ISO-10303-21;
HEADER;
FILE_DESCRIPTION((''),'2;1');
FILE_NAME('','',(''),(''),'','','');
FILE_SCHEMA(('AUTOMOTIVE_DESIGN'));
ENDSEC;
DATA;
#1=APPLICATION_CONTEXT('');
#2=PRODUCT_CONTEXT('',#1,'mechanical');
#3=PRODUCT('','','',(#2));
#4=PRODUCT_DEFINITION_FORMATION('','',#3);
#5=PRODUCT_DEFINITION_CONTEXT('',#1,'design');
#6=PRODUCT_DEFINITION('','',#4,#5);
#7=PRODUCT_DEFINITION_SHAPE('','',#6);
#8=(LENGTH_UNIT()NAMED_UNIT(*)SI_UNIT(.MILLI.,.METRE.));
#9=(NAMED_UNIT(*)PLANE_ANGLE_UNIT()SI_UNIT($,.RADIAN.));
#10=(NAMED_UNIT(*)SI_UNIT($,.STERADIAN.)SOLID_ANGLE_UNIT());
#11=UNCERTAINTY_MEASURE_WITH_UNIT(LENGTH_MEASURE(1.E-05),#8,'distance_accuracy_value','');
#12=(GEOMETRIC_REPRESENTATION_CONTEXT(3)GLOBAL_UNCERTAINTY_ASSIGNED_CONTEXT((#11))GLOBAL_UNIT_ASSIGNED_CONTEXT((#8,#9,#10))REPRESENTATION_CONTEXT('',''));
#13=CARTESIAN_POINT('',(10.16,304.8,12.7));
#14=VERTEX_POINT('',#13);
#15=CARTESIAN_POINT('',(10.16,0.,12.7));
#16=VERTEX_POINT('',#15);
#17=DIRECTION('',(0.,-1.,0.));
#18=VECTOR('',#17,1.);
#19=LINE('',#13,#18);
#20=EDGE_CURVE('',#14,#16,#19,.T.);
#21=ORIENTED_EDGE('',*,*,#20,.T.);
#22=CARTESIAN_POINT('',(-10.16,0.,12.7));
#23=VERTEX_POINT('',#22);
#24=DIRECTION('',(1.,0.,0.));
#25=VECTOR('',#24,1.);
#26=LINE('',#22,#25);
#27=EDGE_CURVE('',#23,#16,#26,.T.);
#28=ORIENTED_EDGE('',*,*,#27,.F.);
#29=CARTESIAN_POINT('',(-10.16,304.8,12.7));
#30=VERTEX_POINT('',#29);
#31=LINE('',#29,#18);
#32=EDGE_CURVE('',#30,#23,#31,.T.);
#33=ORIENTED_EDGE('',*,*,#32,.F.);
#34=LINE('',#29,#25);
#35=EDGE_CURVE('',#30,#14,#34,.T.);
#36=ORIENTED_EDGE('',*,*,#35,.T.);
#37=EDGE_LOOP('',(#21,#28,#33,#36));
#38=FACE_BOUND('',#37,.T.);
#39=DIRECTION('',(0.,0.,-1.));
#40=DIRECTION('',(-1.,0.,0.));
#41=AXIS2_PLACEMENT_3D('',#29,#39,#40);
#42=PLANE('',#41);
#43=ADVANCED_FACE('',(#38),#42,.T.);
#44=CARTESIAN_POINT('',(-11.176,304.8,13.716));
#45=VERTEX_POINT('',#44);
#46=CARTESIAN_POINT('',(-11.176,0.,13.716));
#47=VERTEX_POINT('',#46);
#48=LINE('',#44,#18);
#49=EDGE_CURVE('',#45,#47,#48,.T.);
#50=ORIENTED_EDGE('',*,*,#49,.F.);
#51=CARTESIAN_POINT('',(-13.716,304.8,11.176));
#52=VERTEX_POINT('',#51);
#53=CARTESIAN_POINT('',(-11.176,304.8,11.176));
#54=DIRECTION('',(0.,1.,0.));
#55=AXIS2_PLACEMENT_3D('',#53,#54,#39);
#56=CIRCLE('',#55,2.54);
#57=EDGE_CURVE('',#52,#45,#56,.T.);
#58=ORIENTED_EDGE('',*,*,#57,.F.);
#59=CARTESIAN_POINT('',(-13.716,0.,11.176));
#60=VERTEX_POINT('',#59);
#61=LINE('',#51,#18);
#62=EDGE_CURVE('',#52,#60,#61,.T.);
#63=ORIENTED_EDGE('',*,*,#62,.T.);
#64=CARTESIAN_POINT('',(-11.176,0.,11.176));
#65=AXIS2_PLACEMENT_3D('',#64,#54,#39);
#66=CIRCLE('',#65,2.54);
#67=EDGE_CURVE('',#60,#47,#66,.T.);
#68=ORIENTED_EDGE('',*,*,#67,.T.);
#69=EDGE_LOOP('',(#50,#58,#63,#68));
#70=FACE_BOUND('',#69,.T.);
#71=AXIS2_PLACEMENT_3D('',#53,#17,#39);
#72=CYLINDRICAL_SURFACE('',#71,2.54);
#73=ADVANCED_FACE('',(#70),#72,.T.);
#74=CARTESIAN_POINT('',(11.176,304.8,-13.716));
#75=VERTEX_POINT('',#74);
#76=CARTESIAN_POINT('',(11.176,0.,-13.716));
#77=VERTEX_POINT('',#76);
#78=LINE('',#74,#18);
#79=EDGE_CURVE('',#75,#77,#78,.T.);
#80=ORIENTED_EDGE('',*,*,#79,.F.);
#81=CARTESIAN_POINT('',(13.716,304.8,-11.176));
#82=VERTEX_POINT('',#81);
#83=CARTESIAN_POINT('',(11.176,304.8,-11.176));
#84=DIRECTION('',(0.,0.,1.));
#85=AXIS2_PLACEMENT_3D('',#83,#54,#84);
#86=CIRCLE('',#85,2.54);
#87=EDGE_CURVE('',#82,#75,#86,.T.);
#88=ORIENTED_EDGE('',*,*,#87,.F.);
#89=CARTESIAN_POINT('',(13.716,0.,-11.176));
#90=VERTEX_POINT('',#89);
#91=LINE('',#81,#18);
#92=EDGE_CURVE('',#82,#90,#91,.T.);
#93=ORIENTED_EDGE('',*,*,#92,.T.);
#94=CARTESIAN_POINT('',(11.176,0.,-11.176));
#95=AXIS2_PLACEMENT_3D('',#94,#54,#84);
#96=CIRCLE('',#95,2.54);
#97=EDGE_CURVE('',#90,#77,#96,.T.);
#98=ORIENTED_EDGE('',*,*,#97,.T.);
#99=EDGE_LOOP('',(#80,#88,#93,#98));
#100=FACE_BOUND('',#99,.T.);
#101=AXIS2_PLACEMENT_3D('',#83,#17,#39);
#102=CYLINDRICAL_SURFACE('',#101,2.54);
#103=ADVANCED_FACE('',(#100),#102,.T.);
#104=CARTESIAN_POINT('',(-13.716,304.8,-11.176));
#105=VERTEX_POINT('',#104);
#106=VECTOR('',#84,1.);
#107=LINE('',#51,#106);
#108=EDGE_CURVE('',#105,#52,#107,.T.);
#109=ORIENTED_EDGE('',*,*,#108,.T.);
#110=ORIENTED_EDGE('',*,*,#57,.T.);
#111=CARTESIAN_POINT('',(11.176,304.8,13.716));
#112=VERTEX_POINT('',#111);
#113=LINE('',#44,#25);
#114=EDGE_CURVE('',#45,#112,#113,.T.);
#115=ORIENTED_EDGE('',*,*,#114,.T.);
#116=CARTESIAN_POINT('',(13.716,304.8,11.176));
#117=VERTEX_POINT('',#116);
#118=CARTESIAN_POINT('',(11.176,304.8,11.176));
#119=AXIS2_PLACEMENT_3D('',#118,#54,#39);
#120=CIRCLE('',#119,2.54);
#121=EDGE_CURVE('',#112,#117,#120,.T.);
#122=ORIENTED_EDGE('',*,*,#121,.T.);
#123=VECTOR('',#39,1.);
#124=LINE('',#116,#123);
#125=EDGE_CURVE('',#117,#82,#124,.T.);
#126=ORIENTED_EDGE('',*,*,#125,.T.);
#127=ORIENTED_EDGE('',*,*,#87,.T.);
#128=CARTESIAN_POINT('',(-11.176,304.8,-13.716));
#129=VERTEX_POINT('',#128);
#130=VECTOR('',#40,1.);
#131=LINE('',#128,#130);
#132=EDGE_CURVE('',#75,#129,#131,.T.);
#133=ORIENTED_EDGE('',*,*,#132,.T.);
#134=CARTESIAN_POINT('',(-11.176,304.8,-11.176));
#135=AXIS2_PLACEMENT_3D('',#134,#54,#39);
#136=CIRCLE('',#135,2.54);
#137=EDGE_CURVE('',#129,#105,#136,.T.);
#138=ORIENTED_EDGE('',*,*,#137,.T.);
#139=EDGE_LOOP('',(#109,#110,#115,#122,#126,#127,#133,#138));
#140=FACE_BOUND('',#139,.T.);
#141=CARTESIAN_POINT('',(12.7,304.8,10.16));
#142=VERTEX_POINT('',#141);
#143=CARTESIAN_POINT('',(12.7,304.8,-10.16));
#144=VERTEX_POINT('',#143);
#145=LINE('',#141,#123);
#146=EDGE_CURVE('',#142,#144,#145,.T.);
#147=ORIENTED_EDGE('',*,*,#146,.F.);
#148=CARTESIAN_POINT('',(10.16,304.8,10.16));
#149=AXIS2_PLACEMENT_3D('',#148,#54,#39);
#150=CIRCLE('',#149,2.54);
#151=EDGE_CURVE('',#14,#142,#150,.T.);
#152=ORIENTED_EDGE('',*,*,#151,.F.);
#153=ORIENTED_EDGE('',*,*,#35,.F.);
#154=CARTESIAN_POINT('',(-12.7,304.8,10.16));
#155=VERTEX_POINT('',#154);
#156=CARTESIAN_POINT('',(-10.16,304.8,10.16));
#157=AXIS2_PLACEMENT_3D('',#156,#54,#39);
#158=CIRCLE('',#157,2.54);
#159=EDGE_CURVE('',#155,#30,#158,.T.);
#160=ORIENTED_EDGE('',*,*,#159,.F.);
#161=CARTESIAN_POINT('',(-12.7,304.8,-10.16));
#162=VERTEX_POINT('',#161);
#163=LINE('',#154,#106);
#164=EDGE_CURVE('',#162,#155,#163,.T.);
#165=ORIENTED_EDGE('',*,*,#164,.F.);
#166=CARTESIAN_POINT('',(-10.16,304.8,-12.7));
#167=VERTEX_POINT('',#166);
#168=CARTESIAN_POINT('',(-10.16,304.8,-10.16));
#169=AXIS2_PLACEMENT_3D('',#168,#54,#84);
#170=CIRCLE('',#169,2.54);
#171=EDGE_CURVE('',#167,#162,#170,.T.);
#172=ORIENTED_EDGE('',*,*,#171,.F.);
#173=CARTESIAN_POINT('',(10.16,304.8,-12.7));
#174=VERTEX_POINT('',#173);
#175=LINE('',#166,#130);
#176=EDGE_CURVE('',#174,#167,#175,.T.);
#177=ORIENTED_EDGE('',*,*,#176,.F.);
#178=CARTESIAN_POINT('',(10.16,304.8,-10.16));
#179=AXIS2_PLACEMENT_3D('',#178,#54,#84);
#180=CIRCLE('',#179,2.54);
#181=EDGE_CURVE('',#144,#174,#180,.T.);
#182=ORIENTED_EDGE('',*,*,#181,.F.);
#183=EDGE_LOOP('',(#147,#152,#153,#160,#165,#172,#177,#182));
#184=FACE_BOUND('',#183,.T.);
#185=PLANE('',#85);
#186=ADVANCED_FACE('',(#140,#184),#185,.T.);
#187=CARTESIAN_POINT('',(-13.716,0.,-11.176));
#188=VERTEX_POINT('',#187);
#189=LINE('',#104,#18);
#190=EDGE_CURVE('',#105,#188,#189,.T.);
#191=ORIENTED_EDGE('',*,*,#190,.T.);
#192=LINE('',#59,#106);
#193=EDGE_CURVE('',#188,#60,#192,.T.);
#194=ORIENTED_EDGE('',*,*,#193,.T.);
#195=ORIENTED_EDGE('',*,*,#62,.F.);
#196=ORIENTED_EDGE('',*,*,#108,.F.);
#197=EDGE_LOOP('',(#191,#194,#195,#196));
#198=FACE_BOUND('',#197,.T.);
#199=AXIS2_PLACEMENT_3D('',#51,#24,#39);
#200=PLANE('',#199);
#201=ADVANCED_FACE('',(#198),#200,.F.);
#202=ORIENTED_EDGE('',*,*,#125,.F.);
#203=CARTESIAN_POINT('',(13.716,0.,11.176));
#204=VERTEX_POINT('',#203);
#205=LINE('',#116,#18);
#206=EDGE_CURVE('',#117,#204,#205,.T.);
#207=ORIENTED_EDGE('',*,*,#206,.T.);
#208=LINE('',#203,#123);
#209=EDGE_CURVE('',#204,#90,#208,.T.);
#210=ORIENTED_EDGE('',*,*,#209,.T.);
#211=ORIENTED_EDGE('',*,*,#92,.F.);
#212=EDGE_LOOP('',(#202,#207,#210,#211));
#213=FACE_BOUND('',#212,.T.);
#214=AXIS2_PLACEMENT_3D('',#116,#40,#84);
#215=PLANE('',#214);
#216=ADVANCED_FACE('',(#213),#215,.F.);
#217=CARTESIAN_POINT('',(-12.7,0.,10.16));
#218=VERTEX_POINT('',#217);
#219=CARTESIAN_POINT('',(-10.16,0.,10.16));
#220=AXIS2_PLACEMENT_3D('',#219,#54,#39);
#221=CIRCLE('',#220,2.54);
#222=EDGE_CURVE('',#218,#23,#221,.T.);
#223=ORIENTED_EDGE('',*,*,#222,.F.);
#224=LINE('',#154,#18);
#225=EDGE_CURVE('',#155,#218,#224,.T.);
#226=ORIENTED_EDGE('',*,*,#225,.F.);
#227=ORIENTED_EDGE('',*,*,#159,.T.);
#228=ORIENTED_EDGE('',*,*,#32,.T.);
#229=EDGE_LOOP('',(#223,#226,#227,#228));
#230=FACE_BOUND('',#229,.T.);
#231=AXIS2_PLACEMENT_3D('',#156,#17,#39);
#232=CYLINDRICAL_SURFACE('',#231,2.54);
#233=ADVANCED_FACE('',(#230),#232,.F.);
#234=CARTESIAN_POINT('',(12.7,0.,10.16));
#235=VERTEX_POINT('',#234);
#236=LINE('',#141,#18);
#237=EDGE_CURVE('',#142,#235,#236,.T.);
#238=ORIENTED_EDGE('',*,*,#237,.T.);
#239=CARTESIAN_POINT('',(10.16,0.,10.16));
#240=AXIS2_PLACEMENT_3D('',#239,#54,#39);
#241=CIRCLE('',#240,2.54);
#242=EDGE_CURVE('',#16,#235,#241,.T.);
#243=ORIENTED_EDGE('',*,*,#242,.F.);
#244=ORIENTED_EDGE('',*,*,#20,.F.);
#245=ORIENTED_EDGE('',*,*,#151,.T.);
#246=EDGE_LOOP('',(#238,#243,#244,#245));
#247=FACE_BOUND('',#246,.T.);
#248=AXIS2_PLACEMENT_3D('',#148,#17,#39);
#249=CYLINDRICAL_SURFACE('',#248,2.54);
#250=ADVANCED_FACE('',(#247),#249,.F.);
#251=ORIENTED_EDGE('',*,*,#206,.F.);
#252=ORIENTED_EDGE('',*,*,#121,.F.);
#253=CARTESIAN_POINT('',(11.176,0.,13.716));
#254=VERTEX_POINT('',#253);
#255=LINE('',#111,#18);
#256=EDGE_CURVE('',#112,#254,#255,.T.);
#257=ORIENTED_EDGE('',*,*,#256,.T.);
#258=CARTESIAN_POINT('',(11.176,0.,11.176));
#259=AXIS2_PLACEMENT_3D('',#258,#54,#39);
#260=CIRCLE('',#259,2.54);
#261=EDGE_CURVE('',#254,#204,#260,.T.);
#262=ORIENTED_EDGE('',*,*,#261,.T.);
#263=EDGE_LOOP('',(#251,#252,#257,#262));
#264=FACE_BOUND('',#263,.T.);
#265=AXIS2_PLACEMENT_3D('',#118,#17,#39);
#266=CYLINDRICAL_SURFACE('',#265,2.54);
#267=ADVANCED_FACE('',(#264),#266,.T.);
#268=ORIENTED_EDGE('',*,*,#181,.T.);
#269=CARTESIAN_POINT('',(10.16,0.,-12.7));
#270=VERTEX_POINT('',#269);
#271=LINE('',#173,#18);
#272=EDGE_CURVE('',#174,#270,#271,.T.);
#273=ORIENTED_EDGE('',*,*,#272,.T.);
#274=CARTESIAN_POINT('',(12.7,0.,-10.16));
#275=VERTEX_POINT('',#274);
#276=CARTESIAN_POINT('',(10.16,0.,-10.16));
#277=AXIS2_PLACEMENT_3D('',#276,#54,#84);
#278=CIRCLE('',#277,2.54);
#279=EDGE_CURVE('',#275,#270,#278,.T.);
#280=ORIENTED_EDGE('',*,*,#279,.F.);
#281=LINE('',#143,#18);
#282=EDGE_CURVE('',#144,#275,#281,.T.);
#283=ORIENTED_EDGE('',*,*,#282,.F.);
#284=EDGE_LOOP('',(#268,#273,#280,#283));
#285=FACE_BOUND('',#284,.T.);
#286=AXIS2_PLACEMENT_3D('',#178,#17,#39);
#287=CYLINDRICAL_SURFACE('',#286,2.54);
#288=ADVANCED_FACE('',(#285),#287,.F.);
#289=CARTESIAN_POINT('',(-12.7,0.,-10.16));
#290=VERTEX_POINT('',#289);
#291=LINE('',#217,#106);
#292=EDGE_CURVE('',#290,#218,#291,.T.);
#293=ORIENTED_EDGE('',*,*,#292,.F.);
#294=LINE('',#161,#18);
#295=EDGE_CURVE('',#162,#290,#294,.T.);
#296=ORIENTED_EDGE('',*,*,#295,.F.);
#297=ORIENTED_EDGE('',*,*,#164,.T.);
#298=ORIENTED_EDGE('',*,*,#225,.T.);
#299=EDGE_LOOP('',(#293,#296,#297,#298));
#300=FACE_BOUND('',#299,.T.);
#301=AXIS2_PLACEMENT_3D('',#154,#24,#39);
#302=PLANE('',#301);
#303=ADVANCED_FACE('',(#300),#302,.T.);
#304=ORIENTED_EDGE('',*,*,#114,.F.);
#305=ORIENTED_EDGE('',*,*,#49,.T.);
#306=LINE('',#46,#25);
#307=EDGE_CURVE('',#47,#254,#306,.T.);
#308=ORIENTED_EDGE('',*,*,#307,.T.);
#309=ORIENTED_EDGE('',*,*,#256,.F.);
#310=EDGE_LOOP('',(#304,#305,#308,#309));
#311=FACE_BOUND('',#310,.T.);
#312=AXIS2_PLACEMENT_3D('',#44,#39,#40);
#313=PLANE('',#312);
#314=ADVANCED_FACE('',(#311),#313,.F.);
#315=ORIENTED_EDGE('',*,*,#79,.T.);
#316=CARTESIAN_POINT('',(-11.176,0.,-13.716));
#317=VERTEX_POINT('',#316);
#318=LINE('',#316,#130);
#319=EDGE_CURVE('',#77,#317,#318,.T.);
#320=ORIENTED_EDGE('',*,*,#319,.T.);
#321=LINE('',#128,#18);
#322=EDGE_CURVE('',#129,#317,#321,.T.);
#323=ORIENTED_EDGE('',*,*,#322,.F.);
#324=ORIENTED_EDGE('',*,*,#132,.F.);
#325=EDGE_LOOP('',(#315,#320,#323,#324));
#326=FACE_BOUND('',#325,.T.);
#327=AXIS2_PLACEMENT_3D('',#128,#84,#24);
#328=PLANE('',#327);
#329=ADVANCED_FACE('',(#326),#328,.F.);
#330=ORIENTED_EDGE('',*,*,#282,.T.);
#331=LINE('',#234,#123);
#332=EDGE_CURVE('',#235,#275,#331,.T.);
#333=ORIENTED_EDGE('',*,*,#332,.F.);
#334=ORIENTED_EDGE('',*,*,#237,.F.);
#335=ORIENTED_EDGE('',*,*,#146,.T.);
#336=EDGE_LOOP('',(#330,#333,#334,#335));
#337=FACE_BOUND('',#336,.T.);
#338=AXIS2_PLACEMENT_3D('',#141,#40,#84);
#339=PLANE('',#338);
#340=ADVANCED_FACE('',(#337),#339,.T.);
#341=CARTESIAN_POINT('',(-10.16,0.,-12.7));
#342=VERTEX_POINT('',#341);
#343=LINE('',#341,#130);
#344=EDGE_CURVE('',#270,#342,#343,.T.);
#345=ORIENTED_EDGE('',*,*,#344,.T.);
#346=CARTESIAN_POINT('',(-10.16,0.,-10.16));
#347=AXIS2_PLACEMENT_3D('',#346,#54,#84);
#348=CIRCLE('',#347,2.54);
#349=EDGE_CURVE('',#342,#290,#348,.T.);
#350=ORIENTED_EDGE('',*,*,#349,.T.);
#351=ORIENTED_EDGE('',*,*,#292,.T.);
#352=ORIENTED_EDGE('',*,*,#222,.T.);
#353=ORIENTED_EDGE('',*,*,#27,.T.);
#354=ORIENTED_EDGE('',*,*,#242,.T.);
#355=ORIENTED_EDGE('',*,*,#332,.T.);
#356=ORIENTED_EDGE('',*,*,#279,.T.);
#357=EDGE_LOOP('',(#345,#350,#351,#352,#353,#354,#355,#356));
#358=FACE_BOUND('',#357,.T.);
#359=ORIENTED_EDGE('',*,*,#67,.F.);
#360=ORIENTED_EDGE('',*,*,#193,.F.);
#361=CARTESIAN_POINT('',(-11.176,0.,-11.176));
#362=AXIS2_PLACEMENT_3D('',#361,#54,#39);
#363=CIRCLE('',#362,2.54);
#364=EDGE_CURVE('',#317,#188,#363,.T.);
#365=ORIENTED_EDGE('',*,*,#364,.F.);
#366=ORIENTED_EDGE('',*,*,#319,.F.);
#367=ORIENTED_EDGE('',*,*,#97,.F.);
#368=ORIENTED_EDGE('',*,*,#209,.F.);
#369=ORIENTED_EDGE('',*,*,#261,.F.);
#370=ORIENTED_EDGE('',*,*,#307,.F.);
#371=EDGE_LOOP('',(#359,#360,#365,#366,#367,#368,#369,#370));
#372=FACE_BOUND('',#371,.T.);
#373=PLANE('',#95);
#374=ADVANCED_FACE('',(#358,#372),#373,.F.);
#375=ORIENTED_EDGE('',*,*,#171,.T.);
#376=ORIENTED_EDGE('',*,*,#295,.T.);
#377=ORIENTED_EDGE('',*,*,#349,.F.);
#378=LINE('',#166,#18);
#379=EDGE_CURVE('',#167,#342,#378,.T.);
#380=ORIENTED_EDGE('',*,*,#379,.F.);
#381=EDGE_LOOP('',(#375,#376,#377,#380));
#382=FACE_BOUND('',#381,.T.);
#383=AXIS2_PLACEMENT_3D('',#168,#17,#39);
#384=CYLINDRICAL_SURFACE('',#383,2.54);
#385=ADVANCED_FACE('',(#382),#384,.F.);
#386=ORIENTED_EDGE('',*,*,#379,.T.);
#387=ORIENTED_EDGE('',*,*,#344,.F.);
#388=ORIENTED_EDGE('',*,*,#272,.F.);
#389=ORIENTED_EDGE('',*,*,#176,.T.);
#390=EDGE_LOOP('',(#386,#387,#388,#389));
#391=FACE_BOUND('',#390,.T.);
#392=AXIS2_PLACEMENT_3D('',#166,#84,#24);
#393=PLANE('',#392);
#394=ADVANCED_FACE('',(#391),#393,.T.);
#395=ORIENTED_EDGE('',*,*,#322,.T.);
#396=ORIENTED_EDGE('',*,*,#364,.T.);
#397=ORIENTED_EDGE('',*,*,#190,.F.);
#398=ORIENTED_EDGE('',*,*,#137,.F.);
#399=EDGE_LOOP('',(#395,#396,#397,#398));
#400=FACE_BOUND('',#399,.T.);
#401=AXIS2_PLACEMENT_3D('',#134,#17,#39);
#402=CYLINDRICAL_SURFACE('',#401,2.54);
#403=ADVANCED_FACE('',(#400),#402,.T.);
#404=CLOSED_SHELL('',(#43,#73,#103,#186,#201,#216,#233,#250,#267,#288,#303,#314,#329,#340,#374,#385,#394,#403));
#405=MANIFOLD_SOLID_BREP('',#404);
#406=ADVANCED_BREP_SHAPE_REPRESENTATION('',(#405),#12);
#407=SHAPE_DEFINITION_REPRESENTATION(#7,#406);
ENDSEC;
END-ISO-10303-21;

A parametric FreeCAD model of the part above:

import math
import FreeCAD as App
import Part
import Sketcher

V = App.Vector
Q = App.Units.Quantity

doc = App.newDocument("Part")
body = doc.addObject("PartDesign::Body", "Body")

sketch1 = doc.addObject("Sketcher::SketchObject", "Sketch")
body.addObject(sketch1)
sketch1.AttachmentSupport = (doc.XZ_Plane, [""])
sketch1.MapMode = "FlatFace"
sketch1.addGeometry([
    Part.LineSegment(V(-11.176, 13.716, 0), V(11.176, 13.716, 0)),
    Part.ArcOfCircle(Part.Circle(V(11.176, 11.176, 0), V(0, 0, 1), 2.54), math.radians(0), math.radians(90)),
    Part.LineSegment(V(13.716, 11.176, 0), V(13.716, -11.176, 0)),
    Part.ArcOfCircle(Part.Circle(V(11.176, -11.176, 0), V(0, 0, 1), 2.54), math.radians(-90), math.radians(0)),
    Part.LineSegment(V(11.176, -13.716, 0), V(-11.176, -13.716, 0)),
    Part.ArcOfCircle(Part.Circle(V(-11.176, -11.176, 0), V(0, 0, 1), 2.54), math.radians(-180), math.radians(-90)),
    Part.LineSegment(V(-13.716, -11.176, 0), V(-13.716, 11.176, 0)),
    Part.ArcOfCircle(Part.Circle(V(-11.176, 11.176, 0), V(0, 0, 1), 2.54), math.radians(90), math.radians(180)),
    Part.LineSegment(V(10.16, 12.7, 0), V(-10.16, 12.7, 0)),
    Part.ArcOfCircle(Part.Circle(V(-10.16, 10.16, 0), V(0, 0, 1), 2.54), math.radians(90), math.radians(180)),
    Part.LineSegment(V(-12.7, 10.16, 0), V(-12.7, -10.16, 0)),
    Part.ArcOfCircle(Part.Circle(V(-10.16, -10.16, 0), V(0, 0, 1), 2.54), math.radians(-180), math.radians(-90)),
    Part.LineSegment(V(-10.16, -12.7, 0), V(10.16, -12.7, 0)),
    Part.ArcOfCircle(Part.Circle(V(10.16, -10.16, 0), V(0, 0, 1), 2.54), math.radians(-90), math.radians(0)),
    Part.LineSegment(V(12.7, -10.16, 0), V(12.7, 10.16, 0)),
    Part.ArcOfCircle(Part.Circle(V(10.16, 10.16, 0), V(0, 0, 1), 2.54), math.radians(0), math.radians(90)),
], False)
sketch1.addConstraint([
    Sketcher.Constraint("Tangent", 0, 2, 1, 2),
    Sketcher.Constraint("Tangent", 1, 1, 2, 1),
    Sketcher.Constraint("Tangent", 2, 2, 3, 2),
    Sketcher.Constraint("Tangent", 3, 1, 4, 1),
    Sketcher.Constraint("Tangent", 4, 2, 5, 2),
    Sketcher.Constraint("Tangent", 5, 1, 6, 1),
    Sketcher.Constraint("Tangent", 6, 2, 7, 2),
    Sketcher.Constraint("Tangent", 7, 1, 0, 1),
    Sketcher.Constraint("Tangent", 8, 2, 9, 1),
    Sketcher.Constraint("Tangent", 9, 2, 10, 1),
    Sketcher.Constraint("Tangent", 10, 2, 11, 1),
    Sketcher.Constraint("Tangent", 11, 2, 12, 1),
    Sketcher.Constraint("Tangent", 12, 2, 13, 1),
    Sketcher.Constraint("Tangent", 13, 2, 14, 1),
    Sketcher.Constraint("Tangent", 14, 2, 15, 1),
    Sketcher.Constraint("Tangent", 15, 2, 8, 1),
    Sketcher.Constraint("Horizontal", 0),
    Sketcher.Constraint("Vertical", 2),
    Sketcher.Constraint("Horizontal", 4),
    Sketcher.Constraint("Vertical", 6),
    Sketcher.Constraint("Horizontal", 8),
    Sketcher.Constraint("Vertical", 10),
    Sketcher.Constraint("Horizontal", 12),
    Sketcher.Constraint("Vertical", 14),
    Sketcher.Constraint("Equal", 1, 3),
    Sketcher.Constraint("Equal", 3, 5),
    Sketcher.Constraint("Equal", 5, 7),
    Sketcher.Constraint("Equal", 7, 9),
    Sketcher.Constraint("Equal", 9, 11),
    Sketcher.Constraint("Equal", 11, 13),
    Sketcher.Constraint("Equal", 13, 15),
    Sketcher.Constraint("Symmetric", 1, 3, 5, 3, -1, 1),
    Sketcher.Constraint("Symmetric", 9, 3, 13, 3, -1, 1),
    Sketcher.Constraint("Equal", 4, 2),
    Sketcher.Constraint("Equal", 12, 10),
    Sketcher.Constraint("Radius", 1, Q("0.1 in")),
    Sketcher.Constraint("DistanceX", 8, 2, 8, 1, Q("0.8 in")),
    Sketcher.Constraint("DistanceX", 0, 1, 0, 2, Q("0.88 in")),
])
pad1 = doc.addObject("PartDesign::Pad", "Pad")
body.addObject(pad1)
pad1.Profile = sketch1
pad1.Length = Q("12 in")
pad1.Reversed = True

doc.recompute()
